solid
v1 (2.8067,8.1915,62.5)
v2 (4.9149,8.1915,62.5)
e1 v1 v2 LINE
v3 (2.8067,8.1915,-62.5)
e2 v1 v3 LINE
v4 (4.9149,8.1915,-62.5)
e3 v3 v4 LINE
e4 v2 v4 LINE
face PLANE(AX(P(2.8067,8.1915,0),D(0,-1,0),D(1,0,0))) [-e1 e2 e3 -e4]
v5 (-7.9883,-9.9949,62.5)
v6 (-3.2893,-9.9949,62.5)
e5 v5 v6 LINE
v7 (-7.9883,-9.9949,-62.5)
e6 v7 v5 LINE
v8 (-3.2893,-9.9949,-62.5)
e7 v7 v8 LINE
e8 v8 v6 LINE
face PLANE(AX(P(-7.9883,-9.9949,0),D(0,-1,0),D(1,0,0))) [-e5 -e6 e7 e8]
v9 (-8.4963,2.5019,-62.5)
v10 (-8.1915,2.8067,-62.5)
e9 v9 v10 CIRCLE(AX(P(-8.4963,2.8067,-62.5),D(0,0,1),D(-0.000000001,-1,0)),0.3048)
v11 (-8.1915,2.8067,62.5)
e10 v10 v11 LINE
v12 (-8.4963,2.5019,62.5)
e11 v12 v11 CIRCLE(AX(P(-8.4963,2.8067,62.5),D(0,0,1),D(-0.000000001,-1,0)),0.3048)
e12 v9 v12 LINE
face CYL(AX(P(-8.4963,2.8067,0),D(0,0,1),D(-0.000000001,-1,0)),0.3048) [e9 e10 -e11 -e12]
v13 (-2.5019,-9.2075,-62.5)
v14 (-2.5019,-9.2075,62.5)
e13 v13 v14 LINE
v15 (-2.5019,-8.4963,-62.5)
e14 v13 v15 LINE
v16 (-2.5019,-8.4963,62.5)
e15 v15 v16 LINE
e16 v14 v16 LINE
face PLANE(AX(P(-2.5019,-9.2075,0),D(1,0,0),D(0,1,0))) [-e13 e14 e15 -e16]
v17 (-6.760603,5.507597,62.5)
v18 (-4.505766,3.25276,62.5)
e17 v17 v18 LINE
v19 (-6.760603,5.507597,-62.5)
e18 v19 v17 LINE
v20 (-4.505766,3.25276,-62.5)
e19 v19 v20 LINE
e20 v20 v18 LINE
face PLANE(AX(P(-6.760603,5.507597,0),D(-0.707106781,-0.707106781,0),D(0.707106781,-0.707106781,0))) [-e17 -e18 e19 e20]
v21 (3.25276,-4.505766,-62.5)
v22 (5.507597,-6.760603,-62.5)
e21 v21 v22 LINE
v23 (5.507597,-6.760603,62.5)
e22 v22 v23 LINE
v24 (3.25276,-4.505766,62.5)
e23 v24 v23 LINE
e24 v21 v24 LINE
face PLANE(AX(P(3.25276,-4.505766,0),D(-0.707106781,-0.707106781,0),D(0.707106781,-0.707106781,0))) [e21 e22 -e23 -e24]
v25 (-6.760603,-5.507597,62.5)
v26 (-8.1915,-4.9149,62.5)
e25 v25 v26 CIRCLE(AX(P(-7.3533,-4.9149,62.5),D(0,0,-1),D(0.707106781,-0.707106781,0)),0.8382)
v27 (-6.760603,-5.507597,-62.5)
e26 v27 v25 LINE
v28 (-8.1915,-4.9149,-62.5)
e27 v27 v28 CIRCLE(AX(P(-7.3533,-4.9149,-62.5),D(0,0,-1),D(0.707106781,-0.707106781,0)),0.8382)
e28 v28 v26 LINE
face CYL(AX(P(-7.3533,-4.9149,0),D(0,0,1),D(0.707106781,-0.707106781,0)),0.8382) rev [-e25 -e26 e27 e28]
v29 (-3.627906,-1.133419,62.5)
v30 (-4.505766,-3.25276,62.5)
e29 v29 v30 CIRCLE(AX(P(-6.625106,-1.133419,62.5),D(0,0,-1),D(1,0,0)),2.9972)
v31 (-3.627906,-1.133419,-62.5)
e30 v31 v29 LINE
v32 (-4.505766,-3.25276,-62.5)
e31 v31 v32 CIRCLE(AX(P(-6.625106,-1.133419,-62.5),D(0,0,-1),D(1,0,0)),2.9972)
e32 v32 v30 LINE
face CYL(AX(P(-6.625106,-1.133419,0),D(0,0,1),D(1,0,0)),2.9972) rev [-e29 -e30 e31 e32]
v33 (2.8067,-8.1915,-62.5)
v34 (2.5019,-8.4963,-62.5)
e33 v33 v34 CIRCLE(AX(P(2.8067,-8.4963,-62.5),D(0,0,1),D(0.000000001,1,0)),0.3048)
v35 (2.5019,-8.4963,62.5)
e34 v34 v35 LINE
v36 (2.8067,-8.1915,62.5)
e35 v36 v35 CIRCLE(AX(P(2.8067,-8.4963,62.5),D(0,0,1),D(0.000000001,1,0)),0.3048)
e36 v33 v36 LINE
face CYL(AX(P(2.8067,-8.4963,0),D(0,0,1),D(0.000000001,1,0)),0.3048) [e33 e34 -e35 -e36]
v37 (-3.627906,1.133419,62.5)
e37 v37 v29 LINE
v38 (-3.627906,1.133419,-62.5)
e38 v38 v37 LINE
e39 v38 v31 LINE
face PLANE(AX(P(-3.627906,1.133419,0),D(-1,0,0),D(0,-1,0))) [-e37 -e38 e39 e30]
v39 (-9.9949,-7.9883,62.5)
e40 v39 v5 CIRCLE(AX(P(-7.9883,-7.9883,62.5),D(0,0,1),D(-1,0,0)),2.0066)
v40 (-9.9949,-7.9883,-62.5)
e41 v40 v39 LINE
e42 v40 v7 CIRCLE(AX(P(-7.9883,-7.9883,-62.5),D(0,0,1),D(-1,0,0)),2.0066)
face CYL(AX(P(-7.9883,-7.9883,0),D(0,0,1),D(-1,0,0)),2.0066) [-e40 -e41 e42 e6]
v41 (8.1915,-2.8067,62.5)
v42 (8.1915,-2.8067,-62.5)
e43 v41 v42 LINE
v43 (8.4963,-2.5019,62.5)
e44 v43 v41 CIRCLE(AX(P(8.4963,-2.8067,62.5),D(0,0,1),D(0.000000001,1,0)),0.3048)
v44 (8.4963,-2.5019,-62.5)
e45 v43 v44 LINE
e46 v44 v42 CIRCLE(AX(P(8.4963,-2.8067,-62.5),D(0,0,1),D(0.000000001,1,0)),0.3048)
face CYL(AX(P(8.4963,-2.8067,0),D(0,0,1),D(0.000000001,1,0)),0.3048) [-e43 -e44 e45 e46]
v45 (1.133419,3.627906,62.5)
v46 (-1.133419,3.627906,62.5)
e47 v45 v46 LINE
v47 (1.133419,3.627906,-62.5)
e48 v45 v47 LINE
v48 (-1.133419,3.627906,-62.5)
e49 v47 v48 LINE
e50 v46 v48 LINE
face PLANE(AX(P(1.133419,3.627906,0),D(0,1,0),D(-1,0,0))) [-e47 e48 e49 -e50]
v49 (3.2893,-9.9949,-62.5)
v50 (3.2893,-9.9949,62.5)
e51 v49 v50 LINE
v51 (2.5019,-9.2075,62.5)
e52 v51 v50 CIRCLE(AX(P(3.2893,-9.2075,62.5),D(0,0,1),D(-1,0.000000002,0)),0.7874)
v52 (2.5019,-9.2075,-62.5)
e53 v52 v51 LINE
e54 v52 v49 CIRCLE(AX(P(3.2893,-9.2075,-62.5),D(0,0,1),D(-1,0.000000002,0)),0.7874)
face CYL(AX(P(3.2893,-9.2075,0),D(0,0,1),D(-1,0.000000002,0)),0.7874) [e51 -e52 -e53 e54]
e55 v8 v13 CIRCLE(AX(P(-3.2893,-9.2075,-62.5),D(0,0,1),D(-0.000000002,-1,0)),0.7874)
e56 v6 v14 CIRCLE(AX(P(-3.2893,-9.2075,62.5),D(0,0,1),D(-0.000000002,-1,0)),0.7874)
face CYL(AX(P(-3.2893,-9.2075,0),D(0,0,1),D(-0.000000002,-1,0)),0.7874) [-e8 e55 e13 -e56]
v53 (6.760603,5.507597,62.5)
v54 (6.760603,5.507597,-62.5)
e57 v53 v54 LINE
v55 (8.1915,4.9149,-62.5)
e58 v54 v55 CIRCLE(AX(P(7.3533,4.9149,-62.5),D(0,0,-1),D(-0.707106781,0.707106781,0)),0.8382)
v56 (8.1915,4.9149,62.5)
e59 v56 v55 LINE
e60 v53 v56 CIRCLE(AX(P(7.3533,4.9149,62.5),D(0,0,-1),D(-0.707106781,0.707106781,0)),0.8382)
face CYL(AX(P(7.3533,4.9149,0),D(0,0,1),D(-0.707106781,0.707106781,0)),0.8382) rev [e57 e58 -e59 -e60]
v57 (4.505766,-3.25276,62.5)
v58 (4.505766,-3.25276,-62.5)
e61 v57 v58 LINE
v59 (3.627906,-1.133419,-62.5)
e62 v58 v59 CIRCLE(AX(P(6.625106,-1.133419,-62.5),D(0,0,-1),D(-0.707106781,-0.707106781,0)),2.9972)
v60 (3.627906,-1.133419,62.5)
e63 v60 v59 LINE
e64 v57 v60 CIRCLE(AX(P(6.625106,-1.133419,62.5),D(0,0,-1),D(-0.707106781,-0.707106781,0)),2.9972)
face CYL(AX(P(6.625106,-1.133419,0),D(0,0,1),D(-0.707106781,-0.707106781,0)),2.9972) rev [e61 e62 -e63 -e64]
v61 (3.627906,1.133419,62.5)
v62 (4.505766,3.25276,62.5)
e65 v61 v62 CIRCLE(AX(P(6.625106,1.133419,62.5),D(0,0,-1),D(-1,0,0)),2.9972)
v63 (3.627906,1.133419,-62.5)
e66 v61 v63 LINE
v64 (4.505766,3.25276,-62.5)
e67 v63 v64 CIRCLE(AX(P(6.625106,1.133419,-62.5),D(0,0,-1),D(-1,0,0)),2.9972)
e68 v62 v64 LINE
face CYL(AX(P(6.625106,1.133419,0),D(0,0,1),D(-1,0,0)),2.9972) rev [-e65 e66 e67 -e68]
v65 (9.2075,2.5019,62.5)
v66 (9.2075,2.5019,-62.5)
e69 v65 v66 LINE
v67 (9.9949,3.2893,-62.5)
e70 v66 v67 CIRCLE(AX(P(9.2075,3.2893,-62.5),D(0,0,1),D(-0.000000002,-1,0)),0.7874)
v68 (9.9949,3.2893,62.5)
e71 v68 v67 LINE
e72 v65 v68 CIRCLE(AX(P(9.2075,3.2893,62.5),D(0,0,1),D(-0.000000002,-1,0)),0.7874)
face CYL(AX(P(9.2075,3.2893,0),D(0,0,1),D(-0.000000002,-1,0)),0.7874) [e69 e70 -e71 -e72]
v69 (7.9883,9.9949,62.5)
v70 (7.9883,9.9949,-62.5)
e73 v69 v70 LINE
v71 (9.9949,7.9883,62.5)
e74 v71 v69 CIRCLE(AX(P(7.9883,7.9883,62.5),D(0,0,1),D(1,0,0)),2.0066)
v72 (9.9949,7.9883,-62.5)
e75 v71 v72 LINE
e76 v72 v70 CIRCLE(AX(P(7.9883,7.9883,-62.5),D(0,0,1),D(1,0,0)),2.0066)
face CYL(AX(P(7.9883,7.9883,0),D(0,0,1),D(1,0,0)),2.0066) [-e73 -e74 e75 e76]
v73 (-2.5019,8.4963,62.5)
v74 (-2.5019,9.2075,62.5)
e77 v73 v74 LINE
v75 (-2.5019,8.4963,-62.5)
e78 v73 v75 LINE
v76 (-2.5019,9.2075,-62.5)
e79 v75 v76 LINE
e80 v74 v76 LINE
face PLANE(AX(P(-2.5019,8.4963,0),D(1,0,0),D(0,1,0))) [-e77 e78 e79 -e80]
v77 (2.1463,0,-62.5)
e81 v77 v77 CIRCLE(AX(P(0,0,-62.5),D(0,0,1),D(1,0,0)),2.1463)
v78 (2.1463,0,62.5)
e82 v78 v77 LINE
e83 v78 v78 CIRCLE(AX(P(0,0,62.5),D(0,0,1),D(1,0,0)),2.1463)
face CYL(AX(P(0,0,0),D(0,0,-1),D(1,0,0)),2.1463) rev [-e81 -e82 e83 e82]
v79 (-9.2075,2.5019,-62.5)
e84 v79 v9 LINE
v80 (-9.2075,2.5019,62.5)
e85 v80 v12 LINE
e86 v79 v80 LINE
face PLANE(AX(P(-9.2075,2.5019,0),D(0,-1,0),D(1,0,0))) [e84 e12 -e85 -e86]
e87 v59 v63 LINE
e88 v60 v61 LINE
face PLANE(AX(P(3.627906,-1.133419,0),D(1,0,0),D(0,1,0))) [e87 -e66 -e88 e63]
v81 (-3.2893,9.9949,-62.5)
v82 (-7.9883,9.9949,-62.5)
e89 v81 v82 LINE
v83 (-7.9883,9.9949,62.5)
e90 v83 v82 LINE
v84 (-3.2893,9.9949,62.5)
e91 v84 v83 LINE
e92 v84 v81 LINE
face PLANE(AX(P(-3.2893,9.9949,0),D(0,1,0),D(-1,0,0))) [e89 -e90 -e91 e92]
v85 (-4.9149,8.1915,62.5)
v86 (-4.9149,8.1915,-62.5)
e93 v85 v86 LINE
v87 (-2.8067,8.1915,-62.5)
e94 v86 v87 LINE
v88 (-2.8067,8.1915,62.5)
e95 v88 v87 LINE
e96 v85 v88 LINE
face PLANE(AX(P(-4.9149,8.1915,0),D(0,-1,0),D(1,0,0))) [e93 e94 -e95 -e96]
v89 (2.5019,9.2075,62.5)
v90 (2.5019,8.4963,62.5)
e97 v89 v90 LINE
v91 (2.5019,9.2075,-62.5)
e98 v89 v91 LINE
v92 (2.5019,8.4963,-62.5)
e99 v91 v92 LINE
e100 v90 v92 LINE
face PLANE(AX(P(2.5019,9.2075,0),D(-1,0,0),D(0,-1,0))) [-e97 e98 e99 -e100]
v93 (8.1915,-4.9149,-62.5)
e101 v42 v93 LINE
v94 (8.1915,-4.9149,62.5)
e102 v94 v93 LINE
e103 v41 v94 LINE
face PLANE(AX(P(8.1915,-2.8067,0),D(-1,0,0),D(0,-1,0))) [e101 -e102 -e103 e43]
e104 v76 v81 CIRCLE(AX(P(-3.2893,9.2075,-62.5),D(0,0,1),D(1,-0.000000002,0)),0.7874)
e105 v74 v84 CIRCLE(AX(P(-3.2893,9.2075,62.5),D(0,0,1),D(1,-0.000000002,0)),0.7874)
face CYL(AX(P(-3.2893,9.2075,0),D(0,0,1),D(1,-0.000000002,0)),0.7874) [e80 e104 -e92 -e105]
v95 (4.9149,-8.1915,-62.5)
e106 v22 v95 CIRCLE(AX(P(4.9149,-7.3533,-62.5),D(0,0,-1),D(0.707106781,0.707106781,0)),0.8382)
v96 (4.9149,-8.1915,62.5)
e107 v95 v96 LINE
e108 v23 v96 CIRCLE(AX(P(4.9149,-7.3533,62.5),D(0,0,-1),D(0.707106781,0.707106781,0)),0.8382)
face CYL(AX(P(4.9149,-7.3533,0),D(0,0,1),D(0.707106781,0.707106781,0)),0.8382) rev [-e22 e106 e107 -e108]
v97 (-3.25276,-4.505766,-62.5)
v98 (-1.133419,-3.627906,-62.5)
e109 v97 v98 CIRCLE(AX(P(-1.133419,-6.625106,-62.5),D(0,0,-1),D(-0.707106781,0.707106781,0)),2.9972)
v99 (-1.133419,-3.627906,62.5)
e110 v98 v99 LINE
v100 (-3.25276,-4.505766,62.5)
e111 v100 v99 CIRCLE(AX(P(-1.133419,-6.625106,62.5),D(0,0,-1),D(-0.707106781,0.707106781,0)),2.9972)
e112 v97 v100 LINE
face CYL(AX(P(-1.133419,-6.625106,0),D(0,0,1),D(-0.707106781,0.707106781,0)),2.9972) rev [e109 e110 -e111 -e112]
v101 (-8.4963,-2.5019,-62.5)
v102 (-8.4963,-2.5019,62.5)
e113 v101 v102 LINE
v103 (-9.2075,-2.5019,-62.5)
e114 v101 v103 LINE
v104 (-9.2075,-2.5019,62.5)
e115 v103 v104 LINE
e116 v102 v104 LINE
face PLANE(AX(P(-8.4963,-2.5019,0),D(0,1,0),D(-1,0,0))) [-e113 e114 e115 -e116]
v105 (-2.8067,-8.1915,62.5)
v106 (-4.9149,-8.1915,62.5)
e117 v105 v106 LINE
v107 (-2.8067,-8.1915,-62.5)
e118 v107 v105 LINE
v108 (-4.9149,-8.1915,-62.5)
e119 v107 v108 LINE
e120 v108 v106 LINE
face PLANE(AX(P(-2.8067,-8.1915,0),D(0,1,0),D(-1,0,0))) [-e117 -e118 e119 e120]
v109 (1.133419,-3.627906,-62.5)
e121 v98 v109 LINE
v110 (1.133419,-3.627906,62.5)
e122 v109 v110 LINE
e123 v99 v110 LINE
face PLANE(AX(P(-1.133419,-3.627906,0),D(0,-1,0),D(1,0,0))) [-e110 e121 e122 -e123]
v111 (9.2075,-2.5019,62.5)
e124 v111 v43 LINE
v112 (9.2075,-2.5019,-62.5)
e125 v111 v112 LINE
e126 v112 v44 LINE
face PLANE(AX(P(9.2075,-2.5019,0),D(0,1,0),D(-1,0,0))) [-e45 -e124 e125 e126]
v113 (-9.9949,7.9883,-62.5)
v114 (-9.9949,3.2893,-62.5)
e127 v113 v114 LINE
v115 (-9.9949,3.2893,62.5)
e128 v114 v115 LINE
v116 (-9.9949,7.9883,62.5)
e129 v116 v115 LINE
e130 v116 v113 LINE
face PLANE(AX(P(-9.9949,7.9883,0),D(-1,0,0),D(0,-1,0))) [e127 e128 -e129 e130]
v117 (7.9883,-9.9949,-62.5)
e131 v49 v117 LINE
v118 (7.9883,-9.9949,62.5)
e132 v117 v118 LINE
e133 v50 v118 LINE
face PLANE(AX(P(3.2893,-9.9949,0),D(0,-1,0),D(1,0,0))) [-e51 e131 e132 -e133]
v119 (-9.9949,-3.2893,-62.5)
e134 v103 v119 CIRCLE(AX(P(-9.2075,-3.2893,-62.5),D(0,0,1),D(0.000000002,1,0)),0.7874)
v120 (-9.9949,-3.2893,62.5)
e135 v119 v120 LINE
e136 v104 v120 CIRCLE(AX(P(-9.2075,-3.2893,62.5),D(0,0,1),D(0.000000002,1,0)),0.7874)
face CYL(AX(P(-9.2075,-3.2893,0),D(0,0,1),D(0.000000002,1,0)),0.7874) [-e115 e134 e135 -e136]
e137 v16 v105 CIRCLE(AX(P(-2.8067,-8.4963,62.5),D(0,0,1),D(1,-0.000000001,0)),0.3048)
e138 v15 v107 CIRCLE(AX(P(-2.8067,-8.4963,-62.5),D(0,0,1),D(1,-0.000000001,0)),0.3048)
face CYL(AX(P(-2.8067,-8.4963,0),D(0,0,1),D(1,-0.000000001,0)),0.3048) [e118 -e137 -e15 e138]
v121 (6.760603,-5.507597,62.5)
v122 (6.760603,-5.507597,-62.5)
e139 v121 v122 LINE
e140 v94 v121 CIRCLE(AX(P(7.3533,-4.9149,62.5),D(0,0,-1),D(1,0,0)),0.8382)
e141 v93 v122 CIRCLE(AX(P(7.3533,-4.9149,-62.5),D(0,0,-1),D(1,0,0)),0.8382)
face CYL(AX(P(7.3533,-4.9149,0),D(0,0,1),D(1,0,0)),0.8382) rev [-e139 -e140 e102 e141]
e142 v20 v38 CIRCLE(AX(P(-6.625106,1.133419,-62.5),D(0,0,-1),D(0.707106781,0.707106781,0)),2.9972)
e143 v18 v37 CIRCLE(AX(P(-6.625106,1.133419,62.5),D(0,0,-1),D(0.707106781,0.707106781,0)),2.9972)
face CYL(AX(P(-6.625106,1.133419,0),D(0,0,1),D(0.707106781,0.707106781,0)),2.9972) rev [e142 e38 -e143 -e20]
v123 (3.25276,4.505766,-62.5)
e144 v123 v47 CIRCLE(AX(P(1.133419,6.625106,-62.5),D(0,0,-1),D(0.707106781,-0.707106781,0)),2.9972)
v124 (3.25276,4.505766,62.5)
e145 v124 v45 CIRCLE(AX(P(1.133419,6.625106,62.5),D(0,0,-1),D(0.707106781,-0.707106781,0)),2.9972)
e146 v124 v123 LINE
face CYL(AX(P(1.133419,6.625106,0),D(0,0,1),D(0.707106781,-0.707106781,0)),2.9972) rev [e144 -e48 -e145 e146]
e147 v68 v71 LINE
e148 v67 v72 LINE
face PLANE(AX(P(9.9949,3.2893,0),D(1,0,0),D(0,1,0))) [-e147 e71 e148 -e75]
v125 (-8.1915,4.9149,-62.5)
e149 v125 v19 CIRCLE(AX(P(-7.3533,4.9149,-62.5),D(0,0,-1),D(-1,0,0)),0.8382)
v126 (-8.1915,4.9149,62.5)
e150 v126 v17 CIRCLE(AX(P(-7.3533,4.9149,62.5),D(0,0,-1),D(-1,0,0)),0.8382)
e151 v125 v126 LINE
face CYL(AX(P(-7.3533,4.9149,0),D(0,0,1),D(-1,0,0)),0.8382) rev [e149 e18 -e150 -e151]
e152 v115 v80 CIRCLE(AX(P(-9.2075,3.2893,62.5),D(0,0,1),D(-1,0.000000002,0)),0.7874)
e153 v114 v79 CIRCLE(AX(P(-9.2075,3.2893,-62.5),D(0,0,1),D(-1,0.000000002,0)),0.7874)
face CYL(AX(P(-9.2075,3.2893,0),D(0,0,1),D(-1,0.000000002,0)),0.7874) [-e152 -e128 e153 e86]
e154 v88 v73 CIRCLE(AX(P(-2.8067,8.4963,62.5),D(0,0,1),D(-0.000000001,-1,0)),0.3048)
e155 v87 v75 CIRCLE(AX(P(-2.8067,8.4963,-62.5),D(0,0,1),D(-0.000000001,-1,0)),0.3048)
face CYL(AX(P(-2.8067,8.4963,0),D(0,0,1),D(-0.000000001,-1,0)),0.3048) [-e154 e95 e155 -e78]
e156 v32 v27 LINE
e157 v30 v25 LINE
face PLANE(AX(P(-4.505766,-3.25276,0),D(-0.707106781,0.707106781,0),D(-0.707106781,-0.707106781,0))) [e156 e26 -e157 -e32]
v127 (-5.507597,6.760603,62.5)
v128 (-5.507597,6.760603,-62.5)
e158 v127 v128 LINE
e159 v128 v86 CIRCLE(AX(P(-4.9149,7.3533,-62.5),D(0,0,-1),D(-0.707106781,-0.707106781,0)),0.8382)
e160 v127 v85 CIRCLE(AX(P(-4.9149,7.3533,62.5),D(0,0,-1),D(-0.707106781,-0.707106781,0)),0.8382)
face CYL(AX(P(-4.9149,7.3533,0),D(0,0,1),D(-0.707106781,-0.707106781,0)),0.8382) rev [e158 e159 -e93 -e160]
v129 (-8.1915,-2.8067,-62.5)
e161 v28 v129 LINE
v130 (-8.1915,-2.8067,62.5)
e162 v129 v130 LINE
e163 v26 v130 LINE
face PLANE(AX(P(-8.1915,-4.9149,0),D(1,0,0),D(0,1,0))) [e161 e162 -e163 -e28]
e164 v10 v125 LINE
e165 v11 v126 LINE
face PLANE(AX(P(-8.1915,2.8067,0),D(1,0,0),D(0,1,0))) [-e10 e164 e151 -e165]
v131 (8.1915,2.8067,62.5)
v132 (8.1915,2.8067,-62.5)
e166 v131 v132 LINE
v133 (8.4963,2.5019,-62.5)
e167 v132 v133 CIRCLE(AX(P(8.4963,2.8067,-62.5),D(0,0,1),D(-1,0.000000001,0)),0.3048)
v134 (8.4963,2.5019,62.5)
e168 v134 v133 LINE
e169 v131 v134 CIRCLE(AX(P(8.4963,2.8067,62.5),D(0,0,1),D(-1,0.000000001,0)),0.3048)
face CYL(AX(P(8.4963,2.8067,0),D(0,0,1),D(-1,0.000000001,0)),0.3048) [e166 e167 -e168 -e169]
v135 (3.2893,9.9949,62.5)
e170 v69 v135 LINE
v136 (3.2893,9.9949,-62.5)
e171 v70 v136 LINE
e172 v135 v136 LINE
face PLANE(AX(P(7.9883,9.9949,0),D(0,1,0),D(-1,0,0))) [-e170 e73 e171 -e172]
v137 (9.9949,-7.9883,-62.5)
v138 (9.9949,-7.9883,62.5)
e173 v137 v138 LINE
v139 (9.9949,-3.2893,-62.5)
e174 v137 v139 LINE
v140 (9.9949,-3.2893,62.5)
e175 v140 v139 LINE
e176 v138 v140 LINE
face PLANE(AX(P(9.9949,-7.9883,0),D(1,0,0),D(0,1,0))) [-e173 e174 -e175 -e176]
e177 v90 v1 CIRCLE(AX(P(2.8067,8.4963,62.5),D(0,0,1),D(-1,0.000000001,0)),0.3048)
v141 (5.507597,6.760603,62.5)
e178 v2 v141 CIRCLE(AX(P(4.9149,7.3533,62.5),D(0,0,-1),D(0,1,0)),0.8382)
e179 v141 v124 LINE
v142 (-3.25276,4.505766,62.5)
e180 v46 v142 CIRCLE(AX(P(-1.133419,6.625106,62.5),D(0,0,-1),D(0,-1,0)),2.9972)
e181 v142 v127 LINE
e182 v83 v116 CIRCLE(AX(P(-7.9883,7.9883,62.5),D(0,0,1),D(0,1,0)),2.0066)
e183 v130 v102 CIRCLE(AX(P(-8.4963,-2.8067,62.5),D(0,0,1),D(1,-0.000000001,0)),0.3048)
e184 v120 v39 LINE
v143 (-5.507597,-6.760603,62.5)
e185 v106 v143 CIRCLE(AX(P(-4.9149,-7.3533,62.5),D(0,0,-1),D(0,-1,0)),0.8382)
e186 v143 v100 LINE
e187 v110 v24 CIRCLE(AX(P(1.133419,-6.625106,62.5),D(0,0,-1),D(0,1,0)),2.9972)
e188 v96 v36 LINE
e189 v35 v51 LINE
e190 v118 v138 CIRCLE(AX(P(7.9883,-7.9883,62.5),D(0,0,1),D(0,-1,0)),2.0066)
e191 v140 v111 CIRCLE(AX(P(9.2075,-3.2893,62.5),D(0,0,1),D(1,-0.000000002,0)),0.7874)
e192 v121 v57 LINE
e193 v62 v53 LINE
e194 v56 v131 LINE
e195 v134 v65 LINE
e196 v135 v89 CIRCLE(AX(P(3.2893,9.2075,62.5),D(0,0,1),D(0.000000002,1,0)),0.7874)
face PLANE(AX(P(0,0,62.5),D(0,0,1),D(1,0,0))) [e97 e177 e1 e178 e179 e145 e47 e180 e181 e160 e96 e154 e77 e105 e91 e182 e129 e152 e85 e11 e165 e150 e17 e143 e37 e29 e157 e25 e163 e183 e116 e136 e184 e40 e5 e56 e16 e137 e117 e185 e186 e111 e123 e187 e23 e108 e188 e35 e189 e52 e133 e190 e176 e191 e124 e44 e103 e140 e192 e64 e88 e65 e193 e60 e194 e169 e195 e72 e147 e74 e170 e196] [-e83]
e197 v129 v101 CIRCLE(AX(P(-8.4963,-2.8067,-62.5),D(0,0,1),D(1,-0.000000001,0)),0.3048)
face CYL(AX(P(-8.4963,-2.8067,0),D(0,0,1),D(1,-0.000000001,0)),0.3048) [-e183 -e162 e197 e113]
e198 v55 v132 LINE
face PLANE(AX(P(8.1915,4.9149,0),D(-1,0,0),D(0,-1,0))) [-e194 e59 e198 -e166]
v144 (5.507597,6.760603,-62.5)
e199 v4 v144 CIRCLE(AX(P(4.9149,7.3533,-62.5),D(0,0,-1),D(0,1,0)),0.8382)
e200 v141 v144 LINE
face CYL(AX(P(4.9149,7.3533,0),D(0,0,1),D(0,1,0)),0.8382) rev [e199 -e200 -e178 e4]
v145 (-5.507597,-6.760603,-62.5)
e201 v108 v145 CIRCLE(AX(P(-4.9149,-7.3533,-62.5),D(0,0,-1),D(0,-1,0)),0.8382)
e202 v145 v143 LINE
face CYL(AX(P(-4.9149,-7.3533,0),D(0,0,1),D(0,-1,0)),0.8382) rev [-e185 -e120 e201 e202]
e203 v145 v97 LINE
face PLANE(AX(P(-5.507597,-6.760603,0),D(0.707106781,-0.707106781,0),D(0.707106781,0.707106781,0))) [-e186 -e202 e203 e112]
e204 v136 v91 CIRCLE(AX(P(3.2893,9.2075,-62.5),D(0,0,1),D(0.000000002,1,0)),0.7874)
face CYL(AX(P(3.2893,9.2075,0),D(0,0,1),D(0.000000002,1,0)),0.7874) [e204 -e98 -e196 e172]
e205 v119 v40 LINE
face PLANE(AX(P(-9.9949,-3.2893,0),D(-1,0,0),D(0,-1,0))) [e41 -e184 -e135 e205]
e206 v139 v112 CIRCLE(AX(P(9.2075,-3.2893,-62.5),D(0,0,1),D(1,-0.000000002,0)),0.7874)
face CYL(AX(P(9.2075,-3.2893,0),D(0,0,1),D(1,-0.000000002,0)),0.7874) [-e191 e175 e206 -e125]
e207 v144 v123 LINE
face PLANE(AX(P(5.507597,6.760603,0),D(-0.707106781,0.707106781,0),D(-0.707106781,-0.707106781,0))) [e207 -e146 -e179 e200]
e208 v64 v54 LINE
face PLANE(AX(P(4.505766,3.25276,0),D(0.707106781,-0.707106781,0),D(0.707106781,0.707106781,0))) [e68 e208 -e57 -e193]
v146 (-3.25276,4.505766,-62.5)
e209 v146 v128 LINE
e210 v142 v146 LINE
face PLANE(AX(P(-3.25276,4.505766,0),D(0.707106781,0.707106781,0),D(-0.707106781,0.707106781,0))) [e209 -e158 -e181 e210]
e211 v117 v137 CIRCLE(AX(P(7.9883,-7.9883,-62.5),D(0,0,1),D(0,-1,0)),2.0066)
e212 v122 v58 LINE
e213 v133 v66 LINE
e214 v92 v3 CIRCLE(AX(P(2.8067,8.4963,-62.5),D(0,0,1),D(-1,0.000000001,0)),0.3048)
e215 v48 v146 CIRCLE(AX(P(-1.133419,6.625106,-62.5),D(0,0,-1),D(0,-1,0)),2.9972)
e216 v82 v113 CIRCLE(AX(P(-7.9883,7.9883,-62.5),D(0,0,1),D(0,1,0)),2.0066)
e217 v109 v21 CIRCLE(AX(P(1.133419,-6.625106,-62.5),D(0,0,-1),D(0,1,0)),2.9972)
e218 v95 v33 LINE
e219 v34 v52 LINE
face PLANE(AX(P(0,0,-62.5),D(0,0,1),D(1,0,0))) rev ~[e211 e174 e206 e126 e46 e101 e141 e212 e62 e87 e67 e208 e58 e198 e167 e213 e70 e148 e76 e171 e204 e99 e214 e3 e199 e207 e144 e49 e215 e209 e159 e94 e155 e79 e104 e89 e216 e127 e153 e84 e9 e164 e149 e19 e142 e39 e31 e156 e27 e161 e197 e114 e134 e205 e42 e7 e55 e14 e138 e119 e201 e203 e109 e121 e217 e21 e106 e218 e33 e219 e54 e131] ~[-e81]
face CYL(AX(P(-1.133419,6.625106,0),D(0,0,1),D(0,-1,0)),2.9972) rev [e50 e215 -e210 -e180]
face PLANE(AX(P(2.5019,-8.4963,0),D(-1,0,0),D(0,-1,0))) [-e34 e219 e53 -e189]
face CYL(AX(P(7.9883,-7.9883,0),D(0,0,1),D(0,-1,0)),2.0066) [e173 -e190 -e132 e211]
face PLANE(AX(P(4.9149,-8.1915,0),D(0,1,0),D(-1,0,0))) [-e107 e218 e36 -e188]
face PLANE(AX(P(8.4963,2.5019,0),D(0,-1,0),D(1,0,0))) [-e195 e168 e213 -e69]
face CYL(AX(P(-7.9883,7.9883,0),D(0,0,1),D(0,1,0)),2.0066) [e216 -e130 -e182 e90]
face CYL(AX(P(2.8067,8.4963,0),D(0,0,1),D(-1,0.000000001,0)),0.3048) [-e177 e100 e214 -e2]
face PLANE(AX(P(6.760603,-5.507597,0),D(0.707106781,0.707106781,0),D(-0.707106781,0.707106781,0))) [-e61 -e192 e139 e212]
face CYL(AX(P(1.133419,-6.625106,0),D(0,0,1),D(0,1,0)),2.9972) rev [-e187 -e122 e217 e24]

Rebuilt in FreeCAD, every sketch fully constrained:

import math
import FreeCAD as App
import Part
import Sketcher
Q = App.Units.Quantity

doc = App.newDocument("Part")
params = doc.addObject("Spreadsheet::Sheet", "Params")
for row, (alias, value) in enumerate([
    ("sketch1_diameter", "0.169 in"),
    ("sketch1_radius", "0.031 in"),
    ("sketch1_radius2", "0.012 in"),
    ("sketch1_radius3", "0.033 in"),
    ("sketch1_radius4", "0.118 in"),
    ("pad1_length", "125 mm"),
], start=1):
    params.set(f"A{row}", alias)
    params.set(f"B{row}", "=" + value)
    params.setAlias(f"B{row}", alias)

body = doc.addObject("PartDesign::Body", "Body")

# Sketch on XY plane
sketch1 = body.newObject("Sketcher::SketchObject", "Sketch")
sketch1.AttachmentSupport = (doc.getObject("XY_Plane"), [""])
sketch1.MapMode = "FlatFace"
sketch1.addGeometry(Part.LineSegment(App.Vector(-9.99, 7.99, 0), App.Vector(-9.99, 3.29, 0)), False)
sketch1.addGeometry(Part.ArcOfCircle(Part.Circle(App.Vector(-9.21, 3.29, 0), App.Vector(0, 0, 1), 0.79), math.radians(180), math.radians(270)), False)
sketch1.addGeometry(Part.LineSegment(App.Vector(-9.21, 2.5, 0), App.Vector(-8.5, 2.5, 0)), False)
sketch1.addGeometry(Part.ArcOfCircle(Part.Circle(App.Vector(-8.5, 2.81, 0), App.Vector(0, 0, 1), 0.3), math.radians(-90), math.radians(0)), False)
sketch1.addGeometry(Part.LineSegment(App.Vector(-8.19, 2.81, 0), App.Vector(-8.19, 4.91, 0)), False)
sketch1.addGeometry(Part.ArcOfCircle(Part.Circle(App.Vector(-7.35, 4.91, 0), App.Vector(0, 0, 1), 0.84), math.radians(45), math.radians(180)), False)
sketch1.addGeometry(Part.LineSegment(App.Vector(-6.76, 5.51, 0), App.Vector(-4.51, 3.25, 0)), False)
sketch1.addGeometry(Part.ArcOfCircle(Part.Circle(App.Vector(-6.63, 1.13, 0), App.Vector(0, 0, 1), 3), math.radians(0), math.radians(45)), False)
sketch1.addGeometry(Part.LineSegment(App.Vector(-3.63, 1.13, 0), App.Vector(-3.63, -1.13, 0)), False)
sketch1.addGeometry(Part.ArcOfCircle(Part.Circle(App.Vector(-6.63, -1.13, 0), App.Vector(0, 0, 1), 3), math.radians(-45), math.radians(0)), False)
sketch1.addGeometry(Part.LineSegment(App.Vector(-4.51, -3.25, 0), App.Vector(-6.76, -5.51, 0)), False)
sketch1.addGeometry(Part.ArcOfCircle(Part.Circle(App.Vector(-7.35, -4.91, 0), App.Vector(0, 0, 1), 0.84), math.radians(180), math.radians(315)), False)
sketch1.addGeometry(Part.LineSegment(App.Vector(-8.19, -4.91, 0), App.Vector(-8.19, -2.81, 0)), False)
sketch1.addGeometry(Part.ArcOfCircle(Part.Circle(App.Vector(-8.5, -2.81, 0), App.Vector(0, 0, 1), 0.3), math.radians(0), math.radians(90)), False)
sketch1.addGeometry(Part.LineSegment(App.Vector(-8.5, -2.5, 0), App.Vector(-9.21, -2.5, 0)), False)
sketch1.addGeometry(Part.ArcOfCircle(Part.Circle(App.Vector(-9.21, -3.29, 0), App.Vector(0, 0, 1), 0.79), math.radians(90), math.radians(180)), False)
sketch1.addGeometry(Part.LineSegment(App.Vector(-9.99, -3.29, 0), App.Vector(-9.99, -7.99, 0)), False)
sketch1.addGeometry(Part.ArcOfCircle(Part.Circle(App.Vector(-7.99, -7.99, 0), App.Vector(0, 0, 1), 2.01), math.radians(180), math.radians(270)), False)
sketch1.addGeometry(Part.LineSegment(App.Vector(-7.99, -9.99, 0), App.Vector(-3.29, -9.99, 0)), False)
sketch1.addGeometry(Part.ArcOfCircle(Part.Circle(App.Vector(-3.29, -9.21, 0), App.Vector(0, 0, 1), 0.79), math.radians(-90), math.radians(0)), False)
sketch1.addGeometry(Part.LineSegment(App.Vector(-2.5, -9.21, 0), App.Vector(-2.5, -8.5, 0)), False)
sketch1.addGeometry(Part.ArcOfCircle(Part.Circle(App.Vector(-2.81, -8.5, 0), App.Vector(0, 0, 1), 0.3), math.radians(0), math.radians(90)), False)
sketch1.addGeometry(Part.LineSegment(App.Vector(-2.81, -8.19, 0), App.Vector(-4.91, -8.19, 0)), False)
sketch1.addGeometry(Part.ArcOfCircle(Part.Circle(App.Vector(-4.91, -7.35, 0), App.Vector(0, 0, 1), 0.84), math.radians(135), math.radians(270)), False)
sketch1.addGeometry(Part.LineSegment(App.Vector(-5.51, -6.76, 0), App.Vector(-3.25, -4.51, 0)), False)
sketch1.addGeometry(Part.ArcOfCircle(Part.Circle(App.Vector(-1.13, -6.63, 0), App.Vector(0, 0, 1), 3), math.radians(90), math.radians(135)), False)
sketch1.addGeometry(Part.LineSegment(App.Vector(-1.13, -3.63, 0), App.Vector(1.13, -3.63, 0)), False)
sketch1.addGeometry(Part.ArcOfCircle(Part.Circle(App.Vector(1.13, -6.63, 0), App.Vector(0, 0, 1), 3), math.radians(45), math.radians(90)), False)
sketch1.addGeometry(Part.LineSegment(App.Vector(3.25, -4.51, 0), App.Vector(5.51, -6.76, 0)), False)
sketch1.addGeometry(Part.ArcOfCircle(Part.Circle(App.Vector(4.91, -7.35, 0), App.Vector(0, 0, 1), 0.84), math.radians(-90), math.radians(45)), False)
sketch1.addGeometry(Part.LineSegment(App.Vector(4.91, -8.19, 0), App.Vector(2.81, -8.19, 0)), False)
sketch1.addGeometry(Part.ArcOfCircle(Part.Circle(App.Vector(2.81, -8.5, 0), App.Vector(0, 0, 1), 0.3), math.radians(90), math.radians(180)), False)
sketch1.addGeometry(Part.LineSegment(App.Vector(2.5, -8.5, 0), App.Vector(2.5, -9.21, 0)), False)
sketch1.addGeometry(Part.ArcOfCircle(Part.Circle(App.Vector(3.29, -9.21, 0), App.Vector(0, 0, 1), 0.79), math.radians(180), math.radians(270)), False)
sketch1.addGeometry(Part.LineSegment(App.Vector(3.29, -9.99, 0), App.Vector(7.99, -9.99, 0)), False)
sketch1.addGeometry(Part.ArcOfCircle(Part.Circle(App.Vector(7.99, -7.99, 0), App.Vector(0, 0, 1), 2.01), math.radians(-90), math.radians(0)), False)
sketch1.addGeometry(Part.LineSegment(App.Vector(9.99, -7.99, 0), App.Vector(9.99, -3.29, 0)), False)
sketch1.addGeometry(Part.ArcOfCircle(Part.Circle(App.Vector(9.21, -3.29, 0), App.Vector(0, 0, 1), 0.79), math.radians(0), math.radians(90)), False)
sketch1.addGeometry(Part.LineSegment(App.Vector(9.21, -2.5, 0), App.Vector(8.5, -2.5, 0)), False)
sketch1.addGeometry(Part.ArcOfCircle(Part.Circle(App.Vector(8.5, -2.81, 0), App.Vector(0, 0, 1), 0.3), math.radians(90), math.radians(180)), False)
sketch1.addGeometry(Part.LineSegment(App.Vector(8.19, -2.81, 0), App.Vector(8.19, -4.91, 0)), False)
sketch1.addGeometry(Part.ArcOfCircle(Part.Circle(App.Vector(7.35, -4.91, 0), App.Vector(0, 0, 1), 0.84), math.radians(-135), math.radians(0)), False)
sketch1.addGeometry(Part.LineSegment(App.Vector(6.76, -5.51, 0), App.Vector(4.51, -3.25, 0)), False)
sketch1.addGeometry(Part.ArcOfCircle(Part.Circle(App.Vector(6.63, -1.13, 0), App.Vector(0, 0, 1), 3), math.radians(180), math.radians(225)), False)
sketch1.addGeometry(Part.LineSegment(App.Vector(3.63, -1.13, 0), App.Vector(3.63, 1.13, 0)), False)
sketch1.addGeometry(Part.ArcOfCircle(Part.Circle(App.Vector(6.63, 1.13, 0), App.Vector(0, 0, 1), 3), math.radians(135), math.radians(180)), False)
sketch1.addGeometry(Part.LineSegment(App.Vector(4.51, 3.25, 0), App.Vector(6.76, 5.51, 0)), False)
sketch1.addGeometry(Part.ArcOfCircle(Part.Circle(App.Vector(7.35, 4.91, 0), App.Vector(0, 0, 1), 0.84), math.radians(0), math.radians(135)), False)
sketch1.addGeometry(Part.LineSegment(App.Vector(8.19, 4.91, 0), App.Vector(8.19, 2.81, 0)), False)
sketch1.addGeometry(Part.ArcOfCircle(Part.Circle(App.Vector(8.5, 2.81, 0), App.Vector(0, 0, 1), 0.3), math.radians(180), math.radians(270)), False)
sketch1.addGeometry(Part.LineSegment(App.Vector(8.5, 2.5, 0), App.Vector(9.21, 2.5, 0)), False)
sketch1.addGeometry(Part.ArcOfCircle(Part.Circle(App.Vector(9.21, 3.29, 0), App.Vector(0, 0, 1), 0.79), math.radians(-90), math.radians(0)), False)
sketch1.addGeometry(Part.LineSegment(App.Vector(9.99, 3.29, 0), App.Vector(9.99, 7.99, 0)), False)
sketch1.addGeometry(Part.ArcOfCircle(Part.Circle(App.Vector(7.99, 7.99, 0), App.Vector(0, 0, 1), 2.01), math.radians(0), math.radians(90)), False)
sketch1.addGeometry(Part.LineSegment(App.Vector(7.99, 9.99, 0), App.Vector(3.29, 9.99, 0)), False)
sketch1.addGeometry(Part.ArcOfCircle(Part.Circle(App.Vector(3.29, 9.21, 0), App.Vector(0, 0, 1), 0.79), math.radians(90), math.radians(180)), False)
sketch1.addGeometry(Part.LineSegment(App.Vector(2.5, 9.21, 0), App.Vector(2.5, 8.5, 0)), False)
sketch1.addGeometry(Part.ArcOfCircle(Part.Circle(App.Vector(2.81, 8.5, 0), App.Vector(0, 0, 1), 0.3), math.radians(180), math.radians(270)), False)
sketch1.addGeometry(Part.LineSegment(App.Vector(2.81, 8.19, 0), App.Vector(4.91, 8.19, 0)), False)
sketch1.addGeometry(Part.ArcOfCircle(Part.Circle(App.Vector(4.91, 7.35, 0), App.Vector(0, 0, 1), 0.84), math.radians(-45), math.radians(90)), False)
sketch1.addGeometry(Part.LineSegment(App.Vector(5.51, 6.76, 0), App.Vector(3.25, 4.51, 0)), False)
sketch1.addGeometry(Part.ArcOfCircle(Part.Circle(App.Vector(1.13, 6.63, 0), App.Vector(0, 0, 1), 3), math.radians(-90), math.radians(-45)), False)
sketch1.addGeometry(Part.LineSegment(App.Vector(1.13, 3.63, 0), App.Vector(-1.13, 3.63, 0)), False)
sketch1.addGeometry(Part.ArcOfCircle(Part.Circle(App.Vector(-1.13, 6.63, 0), App.Vector(0, 0, 1), 3), math.radians(-135), math.radians(-90)), False)
sketch1.addGeometry(Part.LineSegment(App.Vector(-3.25, 4.51, 0), App.Vector(-5.51, 6.76, 0)), False)
sketch1.addGeometry(Part.ArcOfCircle(Part.Circle(App.Vector(-4.91, 7.35, 0), App.Vector(0, 0, 1), 0.84), math.radians(90), math.radians(225)), False)
sketch1.addGeometry(Part.LineSegment(App.Vector(-4.91, 8.19, 0), App.Vector(-2.81, 8.19, 0)), False)
sketch1.addGeometry(Part.ArcOfCircle(Part.Circle(App.Vector(-2.81, 8.5, 0), App.Vector(0, 0, 1), 0.3), math.radians(-90), math.radians(0)), False)
sketch1.addGeometry(Part.LineSegment(App.Vector(-2.5, 8.5, 0), App.Vector(-2.5, 9.21, 0)), False)
sketch1.addGeometry(Part.ArcOfCircle(Part.Circle(App.Vector(-3.29, 9.21, 0), App.Vector(0, 0, 1), 0.79), math.radians(0), math.radians(90)), False)
sketch1.addGeometry(Part.LineSegment(App.Vector(-3.29, 9.99, 0), App.Vector(-7.99, 9.99, 0)), False)
sketch1.addGeometry(Part.ArcOfCircle(Part.Circle(App.Vector(-7.99, 7.99, 0), App.Vector(0, 0, 1), 2.01), math.radians(90), math.radians(180)), False)
sketch1.addGeometry(Part.Circle(App.Vector(0, 0, 0), App.Vector(0, 0, 1), 2.15), False)
sketch1.addConstraint(Sketcher.Constraint("Tangent", 0, 2, 1, 1))
sketch1.addConstraint(Sketcher.Constraint("Tangent", 1, 2, 2, 1))
sketch1.addConstraint(Sketcher.Constraint("Tangent", 2, 2, 3, 1))
sketch1.addConstraint(Sketcher.Constraint("Tangent", 3, 2, 4, 1))
sketch1.addConstraint(Sketcher.Constraint("Tangent", 4, 2, 5, 2))
sketch1.addConstraint(Sketcher.Constraint("Tangent", 5, 1, 6, 1))
sketch1.addConstraint(Sketcher.Constraint("Tangent", 6, 2, 7, 2))
sketch1.addConstraint(Sketcher.Constraint("Tangent", 7, 1, 8, 1))
sketch1.addConstraint(Sketcher.Constraint("Tangent", 8, 2, 9, 2))
sketch1.addConstraint(Sketcher.Constraint("Tangent", 9, 1, 10, 1))
sketch1.addConstraint(Sketcher.Constraint("Tangent", 10, 2, 11, 2))
sketch1.addConstraint(Sketcher.Constraint("Tangent", 11, 1, 12, 1))
sketch1.addConstraint(Sketcher.Constraint("Tangent", 12, 2, 13, 1))
sketch1.addConstraint(Sketcher.Constraint("Tangent", 13, 2, 14, 1))
sketch1.addConstraint(Sketcher.Constraint("Tangent", 14, 2, 15, 1))
sketch1.addConstraint(Sketcher.Constraint("Tangent", 15, 2, 16, 1))
sketch1.addConstraint(Sketcher.Constraint("Tangent", 16, 2, 17, 1))
sketch1.addConstraint(Sketcher.Constraint("Tangent", 17, 2, 18, 1))
sketch1.addConstraint(Sketcher.Constraint("Tangent", 18, 2, 19, 1))
sketch1.addConstraint(Sketcher.Constraint("Tangent", 19, 2, 20, 1))
sketch1.addConstraint(Sketcher.Constraint("Tangent", 20, 2, 21, 1))
sketch1.addConstraint(Sketcher.Constraint("Tangent", 21, 2, 22, 1))
sketch1.addConstraint(Sketcher.Constraint("Tangent", 22, 2, 23, 2))
sketch1.addConstraint(Sketcher.Constraint("Tangent", 23, 1, 24, 1))
sketch1.addConstraint(Sketcher.Constraint("Tangent", 24, 2, 25, 2))
sketch1.addConstraint(Sketcher.Constraint("Tangent", 25, 1, 26, 1))
sketch1.addConstraint(Sketcher.Constraint("Tangent", 26, 2, 27, 2))
sketch1.addConstraint(Sketcher.Constraint("Tangent", 27, 1, 28, 1))
sketch1.addConstraint(Sketcher.Constraint("Tangent", 28, 2, 29, 2))
sketch1.addConstraint(Sketcher.Constraint("Tangent", 29, 1, 30, 1))
sketch1.addConstraint(Sketcher.Constraint("Tangent", 30, 2, 31, 1))
sketch1.addConstraint(Sketcher.Constraint("Tangent", 31, 2, 32, 1))
sketch1.addConstraint(Sketcher.Constraint("Tangent", 32, 2, 33, 1))
sketch1.addConstraint(Sketcher.Constraint("Tangent", 33, 2, 34, 1))
sketch1.addConstraint(Sketcher.Constraint("Tangent", 34, 2, 35, 1))
sketch1.addConstraint(Sketcher.Constraint("Tangent", 35, 2, 36, 1))
sketch1.addConstraint(Sketcher.Constraint("Tangent", 36, 2, 37, 1))
sketch1.addConstraint(Sketcher.Constraint("Tangent", 37, 2, 38, 1))
sketch1.addConstraint(Sketcher.Constraint("Tangent", 38, 2, 39, 1))
sketch1.addConstraint(Sketcher.Constraint("Tangent", 39, 2, 40, 1))
sketch1.addConstraint(Sketcher.Constraint("Tangent", 40, 2, 41, 2))
sketch1.addConstraint(Sketcher.Constraint("Tangent", 41, 1, 42, 1))
sketch1.addConstraint(Sketcher.Constraint("Tangent", 42, 2, 43, 2))
sketch1.addConstraint(Sketcher.Constraint("Tangent", 43, 1, 44, 1))
sketch1.addConstraint(Sketcher.Constraint("Tangent", 44, 2, 45, 2))
sketch1.addConstraint(Sketcher.Constraint("Tangent", 45, 1, 46, 1))
sketch1.addConstraint(Sketcher.Constraint("Tangent", 46, 2, 47, 2))
sketch1.addConstraint(Sketcher.Constraint("Tangent", 47, 1, 48, 1))
sketch1.addConstraint(Sketcher.Constraint("Tangent", 48, 2, 49, 1))
sketch1.addConstraint(Sketcher.Constraint("Tangent", 49, 2, 50, 1))
sketch1.addConstraint(Sketcher.Constraint("Tangent", 50, 2, 51, 1))
sketch1.addConstraint(Sketcher.Constraint("Tangent", 51, 2, 52, 1))
sketch1.addConstraint(Sketcher.Constraint("Tangent", 52, 2, 53, 1))
sketch1.addConstraint(Sketcher.Constraint("Tangent", 53, 2, 54, 1))
sketch1.addConstraint(Sketcher.Constraint("Tangent", 54, 2, 55, 1))
sketch1.addConstraint(Sketcher.Constraint("Tangent", 55, 2, 56, 1))
sketch1.addConstraint(Sketcher.Constraint("Tangent", 56, 2, 57, 1))
sketch1.addConstraint(Sketcher.Constraint("Tangent", 57, 2, 58, 1))
sketch1.addConstraint(Sketcher.Constraint("Tangent", 58, 2, 59, 2))
sketch1.addConstraint(Sketcher.Constraint("Tangent", 59, 1, 60, 1))
sketch1.addConstraint(Sketcher.Constraint("Tangent", 60, 2, 61, 2))
sketch1.addConstraint(Sketcher.Constraint("Tangent", 61, 1, 62, 1))
sketch1.addConstraint(Sketcher.Constraint("Tangent", 62, 2, 63, 2))
sketch1.addConstraint(Sketcher.Constraint("Tangent", 63, 1, 64, 1))
sketch1.addConstraint(Sketcher.Constraint("Tangent", 64, 2, 65, 2))
sketch1.addConstraint(Sketcher.Constraint("Tangent", 65, 1, 66, 1))
sketch1.addConstraint(Sketcher.Constraint("Tangent", 66, 2, 67, 1))
sketch1.addConstraint(Sketcher.Constraint("Tangent", 67, 2, 68, 1))
sketch1.addConstraint(Sketcher.Constraint("Tangent", 68, 2, 69, 1))
sketch1.addConstraint(Sketcher.Constraint("Tangent", 69, 2, 70, 1))
sketch1.addConstraint(Sketcher.Constraint("Tangent", 70, 2, 71, 1))
sketch1.addConstraint(Sketcher.Constraint("Tangent", 71, 2, 0, 1))
sketch1.addConstraint(Sketcher.Constraint("Vertical", 0))
sketch1.addConstraint(Sketcher.Constraint("Horizontal", 2))
sketch1.addConstraint(Sketcher.Constraint("Vertical", 4))
sketch1.addConstraint(Sketcher.Constraint("Vertical", 8))
sketch1.addConstraint(Sketcher.Constraint("Vertical", 12))
sketch1.addConstraint(Sketcher.Constraint("Horizontal", 14))
sketch1.addConstraint(Sketcher.Constraint("Vertical", 16))
sketch1.addConstraint(Sketcher.Constraint("Horizontal", 18))
sketch1.addConstraint(Sketcher.Constraint("Vertical", 20))
sketch1.addConstraint(Sketcher.Constraint("Horizontal", 22))
sketch1.addConstraint(Sketcher.Constraint("Horizontal", 26))
sketch1.addConstraint(Sketcher.Constraint("Horizontal", 30))
sketch1.addConstraint(Sketcher.Constraint("Vertical", 32))
sketch1.addConstraint(Sketcher.Constraint("Horizontal", 34))
sketch1.addConstraint(Sketcher.Constraint("Vertical", 36))
sketch1.addConstraint(Sketcher.Constraint("Horizontal", 38))
sketch1.addConstraint(Sketcher.Constraint("Vertical", 40))
sketch1.addConstraint(Sketcher.Constraint("Vertical", 44))
sketch1.addConstraint(Sketcher.Constraint("Vertical", 48))
sketch1.addConstraint(Sketcher.Constraint("Horizontal", 50))
sketch1.addConstraint(Sketcher.Constraint("Vertical", 52))
sketch1.addConstraint(Sketcher.Constraint("Horizontal", 54))
sketch1.addConstraint(Sketcher.Constraint("Vertical", 56))
sketch1.addConstraint(Sketcher.Constraint("Horizontal", 58))
sketch1.addConstraint(Sketcher.Constraint("Horizontal", 62))
sketch1.addConstraint(Sketcher.Constraint("Horizontal", 66))
sketch1.addConstraint(Sketcher.Constraint("Vertical", 68))
sketch1.addConstraint(Sketcher.Constraint("Horizontal", 70))
sketch1.addConstraint(Sketcher.Constraint("Coincident", 72, 3, -1, 1))
sketch1.addConstraint(Sketcher.Constraint("Equal", 7, 9))
sketch1.addConstraint(Sketcher.Constraint("Equal", 5, 11))
sketch1.addConstraint(Sketcher.Constraint("Equal", 3, 13))
sketch1.addConstraint(Sketcher.Constraint("Equal", 1, 15))
sketch1.addConstraint(Sketcher.Constraint("Equal", 15, 19))
sketch1.addConstraint(Sketcher.Constraint("Equal", 13, 21))
sketch1.addConstraint(Sketcher.Constraint("Equal", 11, 23))
sketch1.addConstraint(Sketcher.Constraint("Equal", 9, 25))
sketch1.addConstraint(Sketcher.Constraint("Equal", 25, 27))
sketch1.addConstraint(Sketcher.Constraint("Equal", 23, 29))
sketch1.addConstraint(Sketcher.Constraint("Equal", 21, 31))
sketch1.addConstraint(Sketcher.Constraint("Equal", 19, 33))
sketch1.addConstraint(Sketcher.Constraint("Equal", 17, 35))
sketch1.addConstraint(Sketcher.Constraint("Equal", 33, 37))
sketch1.addConstraint(Sketcher.Constraint("Equal", 31, 39))
sketch1.addConstraint(Sketcher.Constraint("Equal", 29, 41))
sketch1.addConstraint(Sketcher.Constraint("Equal", 27, 43))
sketch1.addConstraint(Sketcher.Constraint("Equal", 43, 45))
sketch1.addConstraint(Sketcher.Constraint("Equal", 41, 47))
sketch1.addConstraint(Sketcher.Constraint("Equal", 39, 49))
sketch1.addConstraint(Sketcher.Constraint("Equal", 37, 51))
sketch1.addConstraint(Sketcher.Constraint("Equal", 35, 53))
sketch1.addConstraint(Sketcher.Constraint("Equal", 51, 55))
sketch1.addConstraint(Sketcher.Constraint("Equal", 49, 57))
sketch1.addConstraint(Sketcher.Constraint("Equal", 47, 59))
sketch1.addConstraint(Sketcher.Constraint("Equal", 45, 61))
sketch1.addConstraint(Sketcher.Constraint("Equal", 61, 63))
sketch1.addConstraint(Sketcher.Constraint("Equal", 59, 65))
sketch1.addConstraint(Sketcher.Constraint("Equal", 57, 67))
sketch1.addConstraint(Sketcher.Constraint("Equal", 55, 69))
sketch1.addConstraint(Sketcher.Constraint("Equal", 53, 71))
sketch1.addConstraint(Sketcher.Constraint("Symmetric", 1, 3, 37, 3, -1, 1))
sketch1.addConstraint(Sketcher.Constraint("Symmetric", 5, 3, 41, 3, -1, 1))
sketch1.addConstraint(Sketcher.Constraint("Symmetric", 7, 3, 43, 3, -1, 1))
sketch1.addConstraint(Sketcher.Constraint("Symmetric", 11, 3, 47, 3, -1, 1))
sketch1.addConstraint(Sketcher.Constraint("Symmetric", 15, 3, 51, 3, -1, 1))
sketch1.addConstraint(Sketcher.Constraint("Symmetric", 19, 3, 55, 3, -1, 1))
sketch1.addConstraint(Sketcher.Constraint("Symmetric", 23, 3, 59, 3, -1, 1))
sketch1.addConstraint(Sketcher.Constraint("Symmetric", 25, 3, 61, 3, -1, 1))
sketch1.addConstraint(Sketcher.Constraint("Symmetric", 29, 3, 65, 3, -1, 1))
sketch1.addConstraint(Sketcher.Constraint("Symmetric", 33, 3, 69, 3, -1, 1))
sketch1.addConstraint(Sketcher.Constraint("Symmetric", 23, 3, 29, 3, -2))
sketch1.addConstraint(Sketcher.Constraint("Symmetric", 19, 3, 33, 3, -2))
sketch1.addConstraint(Sketcher.Constraint("Symmetric", 15, 3, 37, 3, -2))
sketch1.addConstraint(Sketcher.Constraint("Symmetric", 11, 3, 41, 3, -2))
sketch1.addConstraint(Sketcher.Constraint("Perpendicular", 6, 10))
sketch1.addConstraint(Sketcher.Constraint("Parallel", 10, 24))
sketch1.addConstraint(Sketcher.Constraint("Perpendicular", 24, 28))
sketch1.addConstraint(Sketcher.Constraint("Perpendicular", 42, 46))
sketch1.addConstraint(Sketcher.Constraint("Perpendicular", 60, 64))
sketch1.addConstraint(Sketcher.Constraint("Horizontal", 9, 3, 43, 3))
sketch1.addConstraint(Sketcher.Constraint("Equal", 70, 0))
sketch1.addConstraint(Sketcher.Constraint("Equal", 66, 4))
sketch1.addConstraint(Sketcher.Constraint("Equal", 62, 8))
sketch1.addConstraint(Sketcher.Constraint("Equal", 50, 20))
sketch1.addConstraint(Sketcher.Constraint("Equal", 10, 24))
sketch1.addConstraint(Sketcher.Constraint("Diameter", 72, Q("0.169 in")))
sketch1.addConstraint(Sketcher.Constraint("Radius", 1, Q("0.031 in")))
sketch1.addConstraint(Sketcher.Constraint("Radius", 3, Q("0.012 in")))
sketch1.addConstraint(Sketcher.Constraint("Radius", 5, Q("0.033 in")))
sketch1.addConstraint(Sketcher.Constraint("Radius", 7, Q("0.118 in")))
sketch1.addConstraint(Sketcher.Constraint("Radius", 17, Q("0.079 in")))
sketch1.addConstraint(Sketcher.Constraint("DistanceX", 2, 1, 2, 2, Q("0.028 in")))
sketch1.addConstraint(Sketcher.Constraint("DistanceX", 18, 1, 18, 2, Q("0.185 in")))
sketch1.addConstraint(Sketcher.Constraint("DistanceX", 22, 2, 22, 1, Q("0.083 in")))
sketch1.addConstraint(Sketcher.Constraint("DistanceX", 1, 3, -1, 1, Q("0.3625 in")))
sketch1.addConstraint(Sketcher.Constraint("DistanceX", 26, 1, 26, 2, Q("2.266838 mm")))
sketch1.setExpression("Constraints[157]", "Params.sketch1_diameter")
sketch1.setExpression("Constraints[158]", "Params.sketch1_radius")
sketch1.setExpression("Constraints[159]", "Params.sketch1_radius2")
sketch1.setExpression("Constraints[160]", "Params.sketch1_radius3")
sketch1.setExpression("Constraints[161]", "Params.sketch1_radius4")
pad1 = body.newObject("PartDesign::Pad", "Pad")
pad1.Profile = sketch1
pad1.setExpression("Length", "Params.pad1_length")
pad1.Midplane = True

doc.recompute()
